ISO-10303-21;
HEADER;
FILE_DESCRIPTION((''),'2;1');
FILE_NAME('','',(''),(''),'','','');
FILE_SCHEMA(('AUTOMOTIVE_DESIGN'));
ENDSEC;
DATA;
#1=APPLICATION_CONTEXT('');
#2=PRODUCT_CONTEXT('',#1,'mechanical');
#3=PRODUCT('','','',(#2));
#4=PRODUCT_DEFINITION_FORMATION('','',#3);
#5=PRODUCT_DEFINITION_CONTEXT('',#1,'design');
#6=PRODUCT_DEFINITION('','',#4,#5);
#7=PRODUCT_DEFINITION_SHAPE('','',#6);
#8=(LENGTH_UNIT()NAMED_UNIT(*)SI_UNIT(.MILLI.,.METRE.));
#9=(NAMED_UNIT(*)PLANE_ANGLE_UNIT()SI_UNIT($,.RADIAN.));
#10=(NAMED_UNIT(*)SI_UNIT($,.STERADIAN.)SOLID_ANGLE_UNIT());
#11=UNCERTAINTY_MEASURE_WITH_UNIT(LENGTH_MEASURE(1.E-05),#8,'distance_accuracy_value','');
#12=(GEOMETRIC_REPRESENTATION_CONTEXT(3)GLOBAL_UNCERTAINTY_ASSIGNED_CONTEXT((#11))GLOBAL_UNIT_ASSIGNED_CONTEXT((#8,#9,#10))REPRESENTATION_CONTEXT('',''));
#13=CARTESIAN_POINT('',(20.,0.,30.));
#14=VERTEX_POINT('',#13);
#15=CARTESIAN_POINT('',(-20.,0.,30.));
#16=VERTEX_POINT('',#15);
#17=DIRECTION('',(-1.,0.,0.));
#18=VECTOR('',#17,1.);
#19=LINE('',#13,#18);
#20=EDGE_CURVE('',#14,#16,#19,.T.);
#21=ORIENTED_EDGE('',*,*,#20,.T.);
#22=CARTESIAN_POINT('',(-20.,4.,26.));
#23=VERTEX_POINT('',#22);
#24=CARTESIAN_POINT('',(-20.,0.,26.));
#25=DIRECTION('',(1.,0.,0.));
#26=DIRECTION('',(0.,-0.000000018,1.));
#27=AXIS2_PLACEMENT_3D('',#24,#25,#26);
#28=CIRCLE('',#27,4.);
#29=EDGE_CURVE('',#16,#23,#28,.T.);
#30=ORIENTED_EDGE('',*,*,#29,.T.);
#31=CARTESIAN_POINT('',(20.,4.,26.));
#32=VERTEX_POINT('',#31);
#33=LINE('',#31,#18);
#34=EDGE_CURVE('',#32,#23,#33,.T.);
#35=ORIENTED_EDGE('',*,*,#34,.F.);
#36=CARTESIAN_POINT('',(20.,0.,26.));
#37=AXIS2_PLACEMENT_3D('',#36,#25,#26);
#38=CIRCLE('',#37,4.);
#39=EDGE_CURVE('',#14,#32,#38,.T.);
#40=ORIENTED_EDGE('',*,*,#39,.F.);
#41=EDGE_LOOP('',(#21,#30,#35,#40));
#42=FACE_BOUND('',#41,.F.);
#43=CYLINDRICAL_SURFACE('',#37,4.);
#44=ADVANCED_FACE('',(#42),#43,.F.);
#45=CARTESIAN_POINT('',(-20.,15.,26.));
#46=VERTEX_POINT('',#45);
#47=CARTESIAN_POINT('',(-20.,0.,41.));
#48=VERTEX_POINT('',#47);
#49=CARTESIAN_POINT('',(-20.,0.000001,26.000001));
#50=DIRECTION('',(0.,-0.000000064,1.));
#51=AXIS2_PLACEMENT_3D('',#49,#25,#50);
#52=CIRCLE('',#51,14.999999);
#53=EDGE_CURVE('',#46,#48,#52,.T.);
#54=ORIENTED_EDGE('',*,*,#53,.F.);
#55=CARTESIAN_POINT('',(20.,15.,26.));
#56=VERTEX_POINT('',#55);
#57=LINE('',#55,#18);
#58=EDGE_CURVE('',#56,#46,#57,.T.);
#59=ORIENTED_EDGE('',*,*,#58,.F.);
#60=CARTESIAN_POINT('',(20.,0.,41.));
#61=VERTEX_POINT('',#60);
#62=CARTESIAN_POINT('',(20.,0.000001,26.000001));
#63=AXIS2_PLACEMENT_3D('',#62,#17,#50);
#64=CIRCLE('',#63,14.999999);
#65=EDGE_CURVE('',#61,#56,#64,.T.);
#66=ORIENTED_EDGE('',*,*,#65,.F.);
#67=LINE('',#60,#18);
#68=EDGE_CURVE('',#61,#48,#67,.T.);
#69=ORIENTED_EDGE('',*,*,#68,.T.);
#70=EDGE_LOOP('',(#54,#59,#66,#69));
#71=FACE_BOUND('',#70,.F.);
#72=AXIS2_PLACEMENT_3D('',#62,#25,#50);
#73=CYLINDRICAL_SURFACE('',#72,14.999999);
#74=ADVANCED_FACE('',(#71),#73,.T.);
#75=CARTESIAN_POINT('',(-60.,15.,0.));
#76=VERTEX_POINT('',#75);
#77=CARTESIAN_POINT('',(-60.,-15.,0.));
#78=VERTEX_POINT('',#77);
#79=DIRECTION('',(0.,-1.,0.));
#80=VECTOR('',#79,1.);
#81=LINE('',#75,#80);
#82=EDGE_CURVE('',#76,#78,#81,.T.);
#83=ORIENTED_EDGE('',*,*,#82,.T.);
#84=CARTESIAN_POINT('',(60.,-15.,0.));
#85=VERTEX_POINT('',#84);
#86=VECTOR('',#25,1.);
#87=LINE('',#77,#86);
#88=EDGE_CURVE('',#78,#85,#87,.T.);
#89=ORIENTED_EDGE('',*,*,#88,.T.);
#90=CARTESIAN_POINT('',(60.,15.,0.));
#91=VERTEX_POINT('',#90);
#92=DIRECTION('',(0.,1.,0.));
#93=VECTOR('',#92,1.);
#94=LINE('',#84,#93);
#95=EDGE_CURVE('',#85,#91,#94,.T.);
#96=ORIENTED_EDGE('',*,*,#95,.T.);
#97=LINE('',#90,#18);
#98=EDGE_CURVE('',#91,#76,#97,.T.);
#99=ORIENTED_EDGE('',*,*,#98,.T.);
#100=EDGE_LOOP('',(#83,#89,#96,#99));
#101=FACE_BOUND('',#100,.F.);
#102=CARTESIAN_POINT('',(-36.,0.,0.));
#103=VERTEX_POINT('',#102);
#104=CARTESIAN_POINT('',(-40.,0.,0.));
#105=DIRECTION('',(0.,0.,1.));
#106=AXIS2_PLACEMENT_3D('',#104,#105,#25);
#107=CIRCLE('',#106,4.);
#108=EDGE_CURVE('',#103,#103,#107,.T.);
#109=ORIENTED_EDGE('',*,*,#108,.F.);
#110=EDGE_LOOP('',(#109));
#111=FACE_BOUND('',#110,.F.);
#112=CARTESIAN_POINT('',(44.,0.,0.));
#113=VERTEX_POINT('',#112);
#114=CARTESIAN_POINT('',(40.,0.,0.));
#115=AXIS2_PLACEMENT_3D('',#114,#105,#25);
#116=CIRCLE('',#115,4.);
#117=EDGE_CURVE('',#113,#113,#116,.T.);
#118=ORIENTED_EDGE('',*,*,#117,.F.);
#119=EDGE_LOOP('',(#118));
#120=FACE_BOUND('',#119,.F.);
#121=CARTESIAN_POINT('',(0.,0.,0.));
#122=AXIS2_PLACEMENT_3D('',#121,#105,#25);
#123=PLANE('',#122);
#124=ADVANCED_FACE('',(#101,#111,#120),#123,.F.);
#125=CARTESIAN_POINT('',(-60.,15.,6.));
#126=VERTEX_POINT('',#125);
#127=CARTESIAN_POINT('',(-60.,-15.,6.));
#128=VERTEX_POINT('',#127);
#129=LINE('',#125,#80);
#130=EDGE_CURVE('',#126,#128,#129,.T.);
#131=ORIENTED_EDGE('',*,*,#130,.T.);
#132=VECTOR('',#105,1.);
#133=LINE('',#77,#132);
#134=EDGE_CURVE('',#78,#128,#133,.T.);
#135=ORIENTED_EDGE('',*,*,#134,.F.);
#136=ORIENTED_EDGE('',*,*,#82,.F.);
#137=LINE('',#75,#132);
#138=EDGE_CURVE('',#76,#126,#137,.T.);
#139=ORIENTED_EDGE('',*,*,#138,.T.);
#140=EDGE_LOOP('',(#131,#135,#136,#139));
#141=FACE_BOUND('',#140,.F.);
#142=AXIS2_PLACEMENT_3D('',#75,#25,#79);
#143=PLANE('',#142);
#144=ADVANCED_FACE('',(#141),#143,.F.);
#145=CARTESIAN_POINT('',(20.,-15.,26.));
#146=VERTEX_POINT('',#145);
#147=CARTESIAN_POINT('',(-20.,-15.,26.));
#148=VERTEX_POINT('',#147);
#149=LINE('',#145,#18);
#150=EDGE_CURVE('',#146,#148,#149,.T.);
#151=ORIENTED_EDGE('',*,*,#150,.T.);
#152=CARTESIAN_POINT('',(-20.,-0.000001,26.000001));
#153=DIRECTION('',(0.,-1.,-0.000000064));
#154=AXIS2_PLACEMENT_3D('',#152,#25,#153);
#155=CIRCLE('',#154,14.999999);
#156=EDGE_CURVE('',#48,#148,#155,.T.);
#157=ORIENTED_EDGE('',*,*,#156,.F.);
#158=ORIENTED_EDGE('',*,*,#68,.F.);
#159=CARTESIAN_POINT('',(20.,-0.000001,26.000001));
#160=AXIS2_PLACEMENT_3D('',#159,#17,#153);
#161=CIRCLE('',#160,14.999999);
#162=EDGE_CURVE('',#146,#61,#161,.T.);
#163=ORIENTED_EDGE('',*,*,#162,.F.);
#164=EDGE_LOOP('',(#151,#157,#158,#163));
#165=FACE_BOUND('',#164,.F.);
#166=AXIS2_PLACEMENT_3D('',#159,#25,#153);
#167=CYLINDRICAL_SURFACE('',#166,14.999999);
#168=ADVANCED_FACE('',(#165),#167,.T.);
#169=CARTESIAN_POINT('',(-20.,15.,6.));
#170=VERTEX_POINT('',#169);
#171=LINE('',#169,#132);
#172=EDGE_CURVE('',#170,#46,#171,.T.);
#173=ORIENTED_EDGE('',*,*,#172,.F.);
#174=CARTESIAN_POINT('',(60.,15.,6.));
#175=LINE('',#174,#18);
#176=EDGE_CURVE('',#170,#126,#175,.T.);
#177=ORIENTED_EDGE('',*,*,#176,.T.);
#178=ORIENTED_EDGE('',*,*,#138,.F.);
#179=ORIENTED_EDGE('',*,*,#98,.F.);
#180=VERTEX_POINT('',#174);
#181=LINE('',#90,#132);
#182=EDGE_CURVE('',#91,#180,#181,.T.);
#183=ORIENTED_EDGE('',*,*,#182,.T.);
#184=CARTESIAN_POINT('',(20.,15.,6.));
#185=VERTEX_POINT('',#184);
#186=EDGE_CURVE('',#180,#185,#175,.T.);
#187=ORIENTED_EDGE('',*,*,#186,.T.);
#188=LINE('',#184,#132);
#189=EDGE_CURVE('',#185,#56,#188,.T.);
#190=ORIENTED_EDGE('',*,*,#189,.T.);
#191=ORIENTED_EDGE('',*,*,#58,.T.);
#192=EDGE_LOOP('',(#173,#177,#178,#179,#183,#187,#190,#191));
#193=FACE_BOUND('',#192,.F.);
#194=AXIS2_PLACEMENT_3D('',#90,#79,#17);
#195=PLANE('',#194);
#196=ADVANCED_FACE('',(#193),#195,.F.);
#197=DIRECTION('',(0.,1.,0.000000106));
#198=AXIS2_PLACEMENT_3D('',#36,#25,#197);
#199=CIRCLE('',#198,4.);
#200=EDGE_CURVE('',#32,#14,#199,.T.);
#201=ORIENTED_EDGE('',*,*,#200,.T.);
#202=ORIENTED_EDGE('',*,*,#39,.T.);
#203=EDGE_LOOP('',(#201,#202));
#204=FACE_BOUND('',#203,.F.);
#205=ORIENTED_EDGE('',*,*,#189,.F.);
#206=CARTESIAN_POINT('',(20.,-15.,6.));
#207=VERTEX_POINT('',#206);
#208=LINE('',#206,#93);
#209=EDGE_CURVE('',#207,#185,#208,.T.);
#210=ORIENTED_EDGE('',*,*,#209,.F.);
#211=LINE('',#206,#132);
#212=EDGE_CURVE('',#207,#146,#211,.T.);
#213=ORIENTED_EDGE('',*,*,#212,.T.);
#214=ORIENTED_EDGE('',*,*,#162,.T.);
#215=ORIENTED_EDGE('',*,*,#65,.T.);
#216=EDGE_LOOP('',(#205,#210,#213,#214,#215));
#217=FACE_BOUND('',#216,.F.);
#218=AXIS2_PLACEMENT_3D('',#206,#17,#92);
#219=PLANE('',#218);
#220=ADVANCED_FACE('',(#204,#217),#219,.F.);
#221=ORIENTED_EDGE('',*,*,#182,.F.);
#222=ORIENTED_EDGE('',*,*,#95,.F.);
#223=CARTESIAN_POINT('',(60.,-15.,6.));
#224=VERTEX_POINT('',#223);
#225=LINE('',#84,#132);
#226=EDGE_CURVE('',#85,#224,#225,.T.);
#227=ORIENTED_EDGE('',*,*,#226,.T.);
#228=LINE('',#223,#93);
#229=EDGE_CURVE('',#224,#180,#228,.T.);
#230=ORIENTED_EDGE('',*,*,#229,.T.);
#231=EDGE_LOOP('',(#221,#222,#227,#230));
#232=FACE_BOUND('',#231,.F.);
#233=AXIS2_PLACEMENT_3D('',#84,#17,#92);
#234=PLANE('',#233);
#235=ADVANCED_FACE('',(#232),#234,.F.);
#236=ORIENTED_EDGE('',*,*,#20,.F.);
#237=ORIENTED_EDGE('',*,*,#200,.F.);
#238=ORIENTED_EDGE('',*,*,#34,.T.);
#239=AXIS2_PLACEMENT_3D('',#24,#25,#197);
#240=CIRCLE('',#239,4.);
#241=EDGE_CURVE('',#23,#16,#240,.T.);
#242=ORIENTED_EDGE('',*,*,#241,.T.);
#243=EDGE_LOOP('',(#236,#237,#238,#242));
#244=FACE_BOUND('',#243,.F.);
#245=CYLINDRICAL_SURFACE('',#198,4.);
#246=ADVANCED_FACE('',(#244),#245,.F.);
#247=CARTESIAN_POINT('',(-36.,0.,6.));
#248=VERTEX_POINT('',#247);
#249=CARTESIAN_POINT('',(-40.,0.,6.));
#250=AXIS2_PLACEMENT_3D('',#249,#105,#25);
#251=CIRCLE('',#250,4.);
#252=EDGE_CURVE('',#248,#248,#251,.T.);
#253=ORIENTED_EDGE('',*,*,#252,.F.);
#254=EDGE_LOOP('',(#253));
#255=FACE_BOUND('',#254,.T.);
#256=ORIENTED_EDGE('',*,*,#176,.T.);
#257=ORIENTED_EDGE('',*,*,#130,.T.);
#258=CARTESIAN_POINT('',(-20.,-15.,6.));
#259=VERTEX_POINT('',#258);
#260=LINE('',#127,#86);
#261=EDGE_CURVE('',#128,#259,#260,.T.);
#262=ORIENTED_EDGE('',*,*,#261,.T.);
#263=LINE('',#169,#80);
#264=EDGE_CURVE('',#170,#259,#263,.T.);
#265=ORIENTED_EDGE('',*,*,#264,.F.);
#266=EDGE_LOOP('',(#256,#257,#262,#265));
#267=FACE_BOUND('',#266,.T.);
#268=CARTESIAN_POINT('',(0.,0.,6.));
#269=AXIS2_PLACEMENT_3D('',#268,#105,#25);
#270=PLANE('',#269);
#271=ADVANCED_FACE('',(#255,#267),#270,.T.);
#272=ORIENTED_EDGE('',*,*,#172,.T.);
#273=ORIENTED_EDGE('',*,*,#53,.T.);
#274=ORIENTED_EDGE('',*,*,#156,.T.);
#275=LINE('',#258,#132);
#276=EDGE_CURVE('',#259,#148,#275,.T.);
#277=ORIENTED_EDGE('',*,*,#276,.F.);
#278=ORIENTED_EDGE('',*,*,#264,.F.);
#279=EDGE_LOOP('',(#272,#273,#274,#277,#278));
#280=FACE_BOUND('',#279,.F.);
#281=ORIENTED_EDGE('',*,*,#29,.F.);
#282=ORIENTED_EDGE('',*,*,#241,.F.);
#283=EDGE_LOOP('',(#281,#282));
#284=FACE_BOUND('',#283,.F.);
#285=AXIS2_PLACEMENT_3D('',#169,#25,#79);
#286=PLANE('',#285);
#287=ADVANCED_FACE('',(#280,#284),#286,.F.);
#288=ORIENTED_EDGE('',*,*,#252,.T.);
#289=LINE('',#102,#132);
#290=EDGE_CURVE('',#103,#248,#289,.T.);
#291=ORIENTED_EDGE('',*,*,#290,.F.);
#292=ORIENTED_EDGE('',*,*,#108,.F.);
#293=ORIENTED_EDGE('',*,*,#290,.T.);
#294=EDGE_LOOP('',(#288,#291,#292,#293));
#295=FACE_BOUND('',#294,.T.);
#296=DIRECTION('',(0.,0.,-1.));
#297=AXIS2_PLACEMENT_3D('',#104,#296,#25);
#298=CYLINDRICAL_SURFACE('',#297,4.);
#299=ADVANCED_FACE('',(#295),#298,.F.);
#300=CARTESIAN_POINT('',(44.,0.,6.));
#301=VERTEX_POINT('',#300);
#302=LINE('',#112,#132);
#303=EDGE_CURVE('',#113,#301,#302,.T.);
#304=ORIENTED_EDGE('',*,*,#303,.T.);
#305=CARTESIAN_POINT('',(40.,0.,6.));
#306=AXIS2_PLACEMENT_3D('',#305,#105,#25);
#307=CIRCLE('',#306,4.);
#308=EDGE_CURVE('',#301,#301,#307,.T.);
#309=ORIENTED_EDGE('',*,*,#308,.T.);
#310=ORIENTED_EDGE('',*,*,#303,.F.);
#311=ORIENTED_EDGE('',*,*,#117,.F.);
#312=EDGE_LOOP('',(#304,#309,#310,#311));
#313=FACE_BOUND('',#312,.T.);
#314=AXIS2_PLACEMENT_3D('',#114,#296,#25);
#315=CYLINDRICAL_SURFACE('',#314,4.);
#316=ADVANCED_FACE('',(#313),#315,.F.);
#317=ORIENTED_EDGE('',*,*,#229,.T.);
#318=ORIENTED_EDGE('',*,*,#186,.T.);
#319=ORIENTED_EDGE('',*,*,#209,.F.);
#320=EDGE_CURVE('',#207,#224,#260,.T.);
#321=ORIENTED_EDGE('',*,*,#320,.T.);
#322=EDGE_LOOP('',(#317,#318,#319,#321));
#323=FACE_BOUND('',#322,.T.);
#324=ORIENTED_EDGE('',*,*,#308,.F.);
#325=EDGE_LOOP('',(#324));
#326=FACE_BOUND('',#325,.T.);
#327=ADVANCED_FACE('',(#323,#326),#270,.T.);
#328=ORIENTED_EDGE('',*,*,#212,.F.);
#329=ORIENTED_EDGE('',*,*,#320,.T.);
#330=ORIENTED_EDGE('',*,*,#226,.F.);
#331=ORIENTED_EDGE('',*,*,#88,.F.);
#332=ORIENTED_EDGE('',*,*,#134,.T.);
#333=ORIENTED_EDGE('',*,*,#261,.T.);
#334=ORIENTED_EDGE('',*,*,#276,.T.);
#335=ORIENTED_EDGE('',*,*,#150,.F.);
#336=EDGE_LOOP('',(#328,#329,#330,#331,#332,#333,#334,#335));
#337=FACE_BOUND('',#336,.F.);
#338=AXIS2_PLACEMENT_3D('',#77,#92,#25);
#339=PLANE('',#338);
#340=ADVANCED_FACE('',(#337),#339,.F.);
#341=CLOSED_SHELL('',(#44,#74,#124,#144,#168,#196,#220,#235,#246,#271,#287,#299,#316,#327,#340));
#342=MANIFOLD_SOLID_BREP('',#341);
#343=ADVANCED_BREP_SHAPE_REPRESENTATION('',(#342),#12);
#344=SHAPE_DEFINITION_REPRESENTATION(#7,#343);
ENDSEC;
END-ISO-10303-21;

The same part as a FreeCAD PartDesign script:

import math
import FreeCAD as App
import Part
import Sketcher
from FreeCAD import Vector


def add_polygon(sketch, points):
    """Adds a closed chain of lines whose ends are joined by coincident constraints."""
    first, n = sketch.GeometryCount, len(points)
    for a, b in zip(points, points[1:] + points[:1]):
        sketch.addGeometry(Part.LineSegment(App.Vector(*a, 0), App.Vector(*b, 0)), False)
    for i in range(n):
        sketch.addConstraint(Sketcher.Constraint("Coincident", first + i, 2, first + (i + 1) % n, 1))

doc = App.newDocument("Part")
body = doc.addObject("PartDesign::Body", "Body")

sketch1 = doc.addObject("Sketcher::SketchObject", "Sketch")
body.addObject(sketch1)
sketch1.AttachmentSupport = (doc.XY_Plane, [""])
sketch1.MapMode = "FlatFace"
add_polygon(sketch1, [(60, -15), (60, 15), (-60, 15), (-60, -15)])
sketch1.addGeometry(Part.Circle(Vector(-40, 0, 0), Vector(0, 0, 1), 4), False)
sketch1.addGeometry(Part.Circle(Vector(40, 0, 0), Vector(0, 0, 1), 4), False)
sketch1.addConstraint([
    Sketcher.Constraint("Vertical", 0),
    Sketcher.Constraint("Horizontal", 1),
    Sketcher.Constraint("Vertical", 2),
    Sketcher.Constraint("Horizontal", 3),
    Sketcher.Constraint("Equal", 4, 5),
    Sketcher.Constraint("Symmetric", 4, 3, 5, 3, -1, 1),
    Sketcher.Constraint("Symmetric", 0, 2, 2, 2, -1, 1),
    Sketcher.Constraint("PointOnObject", 4, 3, -1),
    Sketcher.Constraint("Diameter", 4, 8.0),
    Sketcher.Constraint("DistanceX", 1, 2, 1, 1, 120.0),
    Sketcher.Constraint("DistanceY", 0, 1, 0, 2, 30.0),
    Sketcher.Constraint("DistanceX", 4, 3, -1, 1, 40.0),
])
pad1 = doc.addObject("PartDesign::Pad", "Pad")
body.addObject(pad1)
pad1.Profile = sketch1
pad1.Length = 6

sketch2 = doc.addObject("Sketcher::SketchObject", "Sketch001")
body.addObject(sketch2)
sketch2.AttachmentSupport = (doc.XY_Plane, [""])
sketch2.MapMode = "FlatFace"
sketch2.AttachmentOffset = App.Placement(Vector(0, 0, 6), App.Rotation())
add_polygon(sketch2, [(20, 15), (-20, 15), (-20, -15), (20, -15)])
sketch2.addConstraint([
    Sketcher.Constraint("Horizontal", 0),
    Sketcher.Constraint("Vertical", 1),
    Sketcher.Constraint("Horizontal", 2),
    Sketcher.Constraint("Vertical", 3),
    Sketcher.Constraint("Symmetric", 0, 2, 2, 2, -1, 1),
    Sketcher.Constraint("DistanceX", 0, 2, 0, 1, 40.0),
    Sketcher.Constraint("DistanceY", 1, 2, 1, 1, 30.0),
])
pad2 = doc.addObject("PartDesign::Pad", "Pad001")
body.addObject(pad2)
pad2.Profile = sketch2
pad2.Length = 35

sketch3 = doc.addObject("Sketcher::SketchObject", "Sketch002")
body.addObject(sketch3)
sketch3.AttachmentSupport = (doc.YZ_Plane, [""])
sketch3.MapMode = "FlatFace"
sketch3.AttachmentOffset = App.Placement(Vector(0, 0, 20), App.Rotation())
sketch3.addGeometry([
    Part.LineSegment(Vector(15, 41, 0), Vector(0, 41, 0)),
    Part.ArcOfCircle(Part.Circle(Vector(0, 26, 0), Vector(0, 0, 1), 15), math.radians(0), math.radians(90)),
    Part.LineSegment(Vector(15, 26, 0), Vector(15, 41, 0)),
    Part.ArcOfCircle(Part.Circle(Vector(0, 26, 0), Vector(0, 0, 1), 15), math.radians(90), math.radians(180)),
    Part.LineSegment(Vector(0, 41, 0), Vector(-15, 41, 0)),
    Part.LineSegment(Vector(-15, 41, 0), Vector(-15, 26, 0)),
    Part.ArcOfCircle(Part.Circle(Vector(0, 26, 0), Vector(0, 0, 1), 4), math.radians(0), math.radians(90)),
    Part.ArcOfCircle(Part.Circle(Vector(0, 26, 0), Vector(0, 0, 1), 4), math.radians(90), math.radians(360)),
], False)
sketch3.addConstraint([
    Sketcher.Constraint("Tangent", 0, 2, 1, 2),
    Sketcher.Constraint("Tangent", 1, 1, 2, 1),
    Sketcher.Constraint("Coincident", 2, 2, 0, 1),
    Sketcher.Constraint("Tangent", 3, 1, 4, 1),
    Sketcher.Constraint("Coincident", 4, 2, 5, 1),
    Sketcher.Constraint("Tangent", 5, 2, 3, 2),
    Sketcher.Constraint("Tangent", 6, 1, 7, 2),
    Sketcher.Constraint("Coincident", 7, 1, 6, 2),
    Sketcher.Constraint("Horizontal", 0),
    Sketcher.Constraint("Vertical", 2),
    Sketcher.Constraint("Horizontal", 4),
    Sketcher.Constraint("Vertical", 5),
    Sketcher.Constraint("Coincident", 3, 3, 1, 3),
    Sketcher.Constraint("Coincident", 6, 3, 1, 3),
    Sketcher.Constraint("Equal", 1, 3),
    Sketcher.Constraint("PointOnObject", 1, 3, -2),
    Sketcher.Constraint("PointOnObject", 7, 1, -2),
    Sketcher.Constraint("Horizontal", 5, 2, 6, 1),
    Sketcher.Constraint("Radius", 1, 14.999999),
    Sketcher.Constraint("Radius", 6, 4.0),
    Sketcher.Constraint("DistanceY", -1, 1, 1, 3, 26.000001),
])
pocket1 = doc.addObject("PartDesign::Pocket", "Pocket")
body.addObject(pocket1)
pocket1.Profile = sketch3
pocket1.Length = 45

doc.recompute()
